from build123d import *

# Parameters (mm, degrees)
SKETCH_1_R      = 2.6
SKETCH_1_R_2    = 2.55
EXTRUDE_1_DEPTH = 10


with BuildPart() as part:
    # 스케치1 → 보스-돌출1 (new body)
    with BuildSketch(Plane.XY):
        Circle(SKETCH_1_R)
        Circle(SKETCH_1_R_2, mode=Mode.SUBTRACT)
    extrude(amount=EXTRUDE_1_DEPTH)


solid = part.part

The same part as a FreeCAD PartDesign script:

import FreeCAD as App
import Part
import Sketcher

V = App.Vector
Q = App.Units.Quantity

doc = App.newDocument("Part")
body = doc.addObject("PartDesign::Body", "Body")

# Sketch on XY plane
sketch1 = doc.addObject("Sketcher::SketchObject", "Sketch")
body.addObject(sketch1)
sketch1.AttachmentSupport = (doc.XY_Plane, [""])
sketch1.MapMode = "FlatFace"
sketch1.addGeometry(Part.Circle(V(0, 0, 0), V(0, 0, 1), 2.6), False)
sketch1.addGeometry(Part.Circle(V(0, 0, 0), V(0, 0, 1), 2.55), False)
sketch1.addConstraint(Sketcher.Constraint("Coincident", 0, 3, -1, 1))
sketch1.addConstraint(Sketcher.Constraint("Coincident", 1, 3, -1, 1))
sketch1.addConstraint(Sketcher.Constraint("Diameter", 0, Q("5.2 mm")))
sketch1.addConstraint(Sketcher.Constraint("Diameter", 1, Q("5.1 mm")))
pad1 = doc.addObject("PartDesign::Pad", "Pad")
body.addObject(pad1)
pad1.Profile = sketch1
pad1.Length = 10

doc.recompute()
